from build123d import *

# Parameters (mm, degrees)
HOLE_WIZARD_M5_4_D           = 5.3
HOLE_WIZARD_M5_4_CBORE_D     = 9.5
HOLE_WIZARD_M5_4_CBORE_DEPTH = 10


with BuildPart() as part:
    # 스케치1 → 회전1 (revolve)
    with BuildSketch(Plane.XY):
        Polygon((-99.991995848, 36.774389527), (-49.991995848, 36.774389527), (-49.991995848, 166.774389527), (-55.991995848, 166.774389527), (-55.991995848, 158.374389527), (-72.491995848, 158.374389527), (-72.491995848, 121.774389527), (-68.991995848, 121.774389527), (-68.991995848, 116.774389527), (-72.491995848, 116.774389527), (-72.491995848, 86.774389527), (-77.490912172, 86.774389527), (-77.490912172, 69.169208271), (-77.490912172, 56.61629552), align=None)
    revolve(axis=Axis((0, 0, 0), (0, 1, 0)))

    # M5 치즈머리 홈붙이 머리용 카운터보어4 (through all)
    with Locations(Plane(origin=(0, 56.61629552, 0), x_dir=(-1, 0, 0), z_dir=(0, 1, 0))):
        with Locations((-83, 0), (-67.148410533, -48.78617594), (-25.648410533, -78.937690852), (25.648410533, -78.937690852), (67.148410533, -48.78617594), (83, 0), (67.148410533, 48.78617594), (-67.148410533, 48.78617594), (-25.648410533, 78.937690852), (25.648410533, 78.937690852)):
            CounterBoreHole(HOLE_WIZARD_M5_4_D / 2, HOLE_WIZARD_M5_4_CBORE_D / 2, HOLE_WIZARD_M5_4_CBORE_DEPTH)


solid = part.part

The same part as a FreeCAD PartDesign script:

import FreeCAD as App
import Part
import Sketcher

V = App.Vector
Q = App.Units.Quantity


def add_polygon(sketch, points):
    """Adds a closed chain of lines whose ends are joined by coincident constraints."""
    first, n = sketch.GeometryCount, len(points)
    for a, b in zip(points, points[1:] + points[:1]):
        sketch.addGeometry(Part.LineSegment(App.Vector(*a, 0), App.Vector(*b, 0)), False)
    for i in range(n):
        sketch.addConstraint(Sketcher.Constraint("Coincident", first + i, 2, first + (i + 1) % n, 1))

doc = App.newDocument("Part")
body = doc.addObject("PartDesign::Body", "Body")

# Sketch on XY plane
sketch1 = doc.addObject("Sketcher::SketchObject", "Sketch")
body.addObject(sketch1)
sketch1.AttachmentSupport = (doc.XY_Plane, [""])
sketch1.MapMode = "FlatFace"
add_polygon(sketch1, [(-100, 36.8), (-50, 36.8), (-50, 166.8), (-56, 166.8), (-56, 158.4), (-72.5, 158.4), (-72.5, 121.8), (-69, 121.8), (-69, 116.8), (-72.5, 116.8), (-72.5, 86.8), (-77.5, 86.8), (-77.5, 56.6)])  # lines 0-12
sketch1.addConstraint([
    Sketcher.Constraint("Horizontal", 0),
    Sketcher.Constraint("Vertical", 1),
    Sketcher.Constraint("Horizontal", 2),
    Sketcher.Constraint("Vertical", 3),
    Sketcher.Constraint("Horizontal", 4),
    Sketcher.Constraint("Vertical", 5),
    Sketcher.Constraint("Horizontal", 6),
    Sketcher.Constraint("Vertical", 7),
    Sketcher.Constraint("Horizontal", 8),
    Sketcher.Constraint("Vertical", 9),
    Sketcher.Constraint("Horizontal", 10),
    Sketcher.Constraint("Vertical", 11),
    Sketcher.Constraint("Vertical", 5, 2, 8, 2),
    Sketcher.Constraint("DistanceX", 0, 1, 0, 2, Q("50 mm")),
    Sketcher.Constraint("DistanceX", 2, 2, 2, 1, Q("6 mm")),
    Sketcher.Constraint("DistanceY", 1, 1, 1, 2, Q("130 mm")),
    Sketcher.Constraint("DistanceY", 7, 2, 7, 1, Q("5 mm")),
    Sketcher.Constraint("DistanceY", 9, 2, 9, 1, Q("30 mm")),
    Sketcher.Constraint("Distance", 12, Q("30 mm")),
    Sketcher.Constraint("DistanceX", 4, 2, 4, 1, Q("16.5 mm")),
    Sketcher.Constraint("DistanceX", 6, 1, 6, 2, Q("3.5 mm")),
    Sketcher.Constraint("DistanceY", 3, 2, 3, 1, Q("8.4 mm")),
    Sketcher.Constraint("DistanceY", 5, 2, 5, 1, Q("36.6 mm")),
    Sketcher.Constraint("DistanceX", 10, 2, 10, 1, Q("4.998916 mm")),
    Sketcher.Constraint("DistanceY", -1, 1, 0, 2, Q("36.77439 mm")),
    Sketcher.Constraint("DistanceX", 0, 2, -1, 1, Q("49.991996 mm")),
])
revolution = doc.addObject("PartDesign::Revolution", "Revolution")
body.addObject(revolution)
revolution.Profile = sketch1
revolution.ReferenceAxis = (sketch1, ["V_Axis"])
revolution.Angle = 360

# Sketch on XZ plane
sketch2 = doc.addObject("Sketcher::SketchObject", "Sketch001")
body.addObject(sketch2)
sketch2.AttachmentSupport = (doc.XZ_Plane, [""])
sketch2.MapMode = "FlatFace"
sketch2.AttachmentOffset = App.Placement(V(0, 0, -56.616296), App.Rotation())
sketch2.addGeometry([
    Part.Circle(V(83, 0, 0), V(0, 0, 1), 2.6),  # 0
    Part.Circle(V(67.1, -48.8, 0), V(0, 0, 1), 2.6),  # 1
    Part.Circle(V(25.6, -78.9, 0), V(0, 0, 1), 2.6),  # 2
    Part.Circle(V(-25.6, -78.9, 0), V(0, 0, 1), 2.6),  # 3
    Part.Circle(V(-67.1, -48.8, 0), V(0, 0, 1), 2.6),  # 4
    Part.Circle(V(-83, 0, 0), V(0, 0, 1), 2.6),  # 5
    Part.Circle(V(-67.1, 48.8, 0), V(0, 0, 1), 2.6),  # 6
    Part.Circle(V(67.1, 48.8, 0), V(0, 0, 1), 2.6),  # 7
    Part.Circle(V(25.6, 78.9, 0), V(0, 0, 1), 2.6),  # 8
    Part.Circle(V(-25.6, 78.9, 0), V(0, 0, 1), 2.6),  # 9
], False)
sketch2.addConstraint([
    Sketcher.Constraint("Equal", 0, 1),
    Sketcher.Constraint("Equal", 1, 2),
    Sketcher.Constraint("Equal", 2, 3),
    Sketcher.Constraint("Equal", 3, 4),
    Sketcher.Constraint("Equal", 4, 5),
    Sketcher.Constraint("Equal", 5, 6),
    Sketcher.Constraint("Equal", 6, 7),
    Sketcher.Constraint("Equal", 7, 8),
    Sketcher.Constraint("Equal", 8, 9),
    Sketcher.Constraint("Symmetric", 0, 3, 5, 3, -1, 1),
    Sketcher.Constraint("Symmetric", 1, 3, 6, 3, -1, 1),
    Sketcher.Constraint("Symmetric", 4, 3, 7, 3, -1, 1),
    Sketcher.Constraint("Symmetric", 3, 3, 8, 3, -1, 1),
    Sketcher.Constraint("Symmetric", 2, 3, 9, 3, -1, 1),
    Sketcher.Constraint("Symmetric", 2, 3, 3, 3, -2),
    Sketcher.Constraint("Symmetric", 1, 3, 4, 3, -2),
    Sketcher.Constraint("PointOnObject", 0, 3, -1),
    Sketcher.Constraint("Diameter", 0, Q("5.3 mm")),
    Sketcher.Constraint("DistanceX", -1, 1, 0, 3, Q("83 mm")),
    Sketcher.Constraint("DistanceX", 2, 3, 1, 3, Q("41.5 mm")),
    Sketcher.Constraint("DistanceX", -1, 1, 1, 3, Q("67.148411 mm")),
    Sketcher.Constraint("DistanceY", 2, 3, -1, 1, Q("78.937691 mm")),
    Sketcher.Constraint("DistanceY", 4, 3, 6, 3, Q("97.572352 mm")),
])
doc.recompute()
hole = doc.addObject("PartDesign::Hole", "Hole")
body.addObject(hole)
hole.Profile = sketch2
hole.ThreadType = "None"
hole.Diameter = 5.3
hole.DepthType = "ThroughAll"
hole.HoleCutType = "Counterbore"
hole.HoleCutDiameter = 9.5
hole.HoleCutDepth = 10
hole.Reversed = True

doc.recompute()
